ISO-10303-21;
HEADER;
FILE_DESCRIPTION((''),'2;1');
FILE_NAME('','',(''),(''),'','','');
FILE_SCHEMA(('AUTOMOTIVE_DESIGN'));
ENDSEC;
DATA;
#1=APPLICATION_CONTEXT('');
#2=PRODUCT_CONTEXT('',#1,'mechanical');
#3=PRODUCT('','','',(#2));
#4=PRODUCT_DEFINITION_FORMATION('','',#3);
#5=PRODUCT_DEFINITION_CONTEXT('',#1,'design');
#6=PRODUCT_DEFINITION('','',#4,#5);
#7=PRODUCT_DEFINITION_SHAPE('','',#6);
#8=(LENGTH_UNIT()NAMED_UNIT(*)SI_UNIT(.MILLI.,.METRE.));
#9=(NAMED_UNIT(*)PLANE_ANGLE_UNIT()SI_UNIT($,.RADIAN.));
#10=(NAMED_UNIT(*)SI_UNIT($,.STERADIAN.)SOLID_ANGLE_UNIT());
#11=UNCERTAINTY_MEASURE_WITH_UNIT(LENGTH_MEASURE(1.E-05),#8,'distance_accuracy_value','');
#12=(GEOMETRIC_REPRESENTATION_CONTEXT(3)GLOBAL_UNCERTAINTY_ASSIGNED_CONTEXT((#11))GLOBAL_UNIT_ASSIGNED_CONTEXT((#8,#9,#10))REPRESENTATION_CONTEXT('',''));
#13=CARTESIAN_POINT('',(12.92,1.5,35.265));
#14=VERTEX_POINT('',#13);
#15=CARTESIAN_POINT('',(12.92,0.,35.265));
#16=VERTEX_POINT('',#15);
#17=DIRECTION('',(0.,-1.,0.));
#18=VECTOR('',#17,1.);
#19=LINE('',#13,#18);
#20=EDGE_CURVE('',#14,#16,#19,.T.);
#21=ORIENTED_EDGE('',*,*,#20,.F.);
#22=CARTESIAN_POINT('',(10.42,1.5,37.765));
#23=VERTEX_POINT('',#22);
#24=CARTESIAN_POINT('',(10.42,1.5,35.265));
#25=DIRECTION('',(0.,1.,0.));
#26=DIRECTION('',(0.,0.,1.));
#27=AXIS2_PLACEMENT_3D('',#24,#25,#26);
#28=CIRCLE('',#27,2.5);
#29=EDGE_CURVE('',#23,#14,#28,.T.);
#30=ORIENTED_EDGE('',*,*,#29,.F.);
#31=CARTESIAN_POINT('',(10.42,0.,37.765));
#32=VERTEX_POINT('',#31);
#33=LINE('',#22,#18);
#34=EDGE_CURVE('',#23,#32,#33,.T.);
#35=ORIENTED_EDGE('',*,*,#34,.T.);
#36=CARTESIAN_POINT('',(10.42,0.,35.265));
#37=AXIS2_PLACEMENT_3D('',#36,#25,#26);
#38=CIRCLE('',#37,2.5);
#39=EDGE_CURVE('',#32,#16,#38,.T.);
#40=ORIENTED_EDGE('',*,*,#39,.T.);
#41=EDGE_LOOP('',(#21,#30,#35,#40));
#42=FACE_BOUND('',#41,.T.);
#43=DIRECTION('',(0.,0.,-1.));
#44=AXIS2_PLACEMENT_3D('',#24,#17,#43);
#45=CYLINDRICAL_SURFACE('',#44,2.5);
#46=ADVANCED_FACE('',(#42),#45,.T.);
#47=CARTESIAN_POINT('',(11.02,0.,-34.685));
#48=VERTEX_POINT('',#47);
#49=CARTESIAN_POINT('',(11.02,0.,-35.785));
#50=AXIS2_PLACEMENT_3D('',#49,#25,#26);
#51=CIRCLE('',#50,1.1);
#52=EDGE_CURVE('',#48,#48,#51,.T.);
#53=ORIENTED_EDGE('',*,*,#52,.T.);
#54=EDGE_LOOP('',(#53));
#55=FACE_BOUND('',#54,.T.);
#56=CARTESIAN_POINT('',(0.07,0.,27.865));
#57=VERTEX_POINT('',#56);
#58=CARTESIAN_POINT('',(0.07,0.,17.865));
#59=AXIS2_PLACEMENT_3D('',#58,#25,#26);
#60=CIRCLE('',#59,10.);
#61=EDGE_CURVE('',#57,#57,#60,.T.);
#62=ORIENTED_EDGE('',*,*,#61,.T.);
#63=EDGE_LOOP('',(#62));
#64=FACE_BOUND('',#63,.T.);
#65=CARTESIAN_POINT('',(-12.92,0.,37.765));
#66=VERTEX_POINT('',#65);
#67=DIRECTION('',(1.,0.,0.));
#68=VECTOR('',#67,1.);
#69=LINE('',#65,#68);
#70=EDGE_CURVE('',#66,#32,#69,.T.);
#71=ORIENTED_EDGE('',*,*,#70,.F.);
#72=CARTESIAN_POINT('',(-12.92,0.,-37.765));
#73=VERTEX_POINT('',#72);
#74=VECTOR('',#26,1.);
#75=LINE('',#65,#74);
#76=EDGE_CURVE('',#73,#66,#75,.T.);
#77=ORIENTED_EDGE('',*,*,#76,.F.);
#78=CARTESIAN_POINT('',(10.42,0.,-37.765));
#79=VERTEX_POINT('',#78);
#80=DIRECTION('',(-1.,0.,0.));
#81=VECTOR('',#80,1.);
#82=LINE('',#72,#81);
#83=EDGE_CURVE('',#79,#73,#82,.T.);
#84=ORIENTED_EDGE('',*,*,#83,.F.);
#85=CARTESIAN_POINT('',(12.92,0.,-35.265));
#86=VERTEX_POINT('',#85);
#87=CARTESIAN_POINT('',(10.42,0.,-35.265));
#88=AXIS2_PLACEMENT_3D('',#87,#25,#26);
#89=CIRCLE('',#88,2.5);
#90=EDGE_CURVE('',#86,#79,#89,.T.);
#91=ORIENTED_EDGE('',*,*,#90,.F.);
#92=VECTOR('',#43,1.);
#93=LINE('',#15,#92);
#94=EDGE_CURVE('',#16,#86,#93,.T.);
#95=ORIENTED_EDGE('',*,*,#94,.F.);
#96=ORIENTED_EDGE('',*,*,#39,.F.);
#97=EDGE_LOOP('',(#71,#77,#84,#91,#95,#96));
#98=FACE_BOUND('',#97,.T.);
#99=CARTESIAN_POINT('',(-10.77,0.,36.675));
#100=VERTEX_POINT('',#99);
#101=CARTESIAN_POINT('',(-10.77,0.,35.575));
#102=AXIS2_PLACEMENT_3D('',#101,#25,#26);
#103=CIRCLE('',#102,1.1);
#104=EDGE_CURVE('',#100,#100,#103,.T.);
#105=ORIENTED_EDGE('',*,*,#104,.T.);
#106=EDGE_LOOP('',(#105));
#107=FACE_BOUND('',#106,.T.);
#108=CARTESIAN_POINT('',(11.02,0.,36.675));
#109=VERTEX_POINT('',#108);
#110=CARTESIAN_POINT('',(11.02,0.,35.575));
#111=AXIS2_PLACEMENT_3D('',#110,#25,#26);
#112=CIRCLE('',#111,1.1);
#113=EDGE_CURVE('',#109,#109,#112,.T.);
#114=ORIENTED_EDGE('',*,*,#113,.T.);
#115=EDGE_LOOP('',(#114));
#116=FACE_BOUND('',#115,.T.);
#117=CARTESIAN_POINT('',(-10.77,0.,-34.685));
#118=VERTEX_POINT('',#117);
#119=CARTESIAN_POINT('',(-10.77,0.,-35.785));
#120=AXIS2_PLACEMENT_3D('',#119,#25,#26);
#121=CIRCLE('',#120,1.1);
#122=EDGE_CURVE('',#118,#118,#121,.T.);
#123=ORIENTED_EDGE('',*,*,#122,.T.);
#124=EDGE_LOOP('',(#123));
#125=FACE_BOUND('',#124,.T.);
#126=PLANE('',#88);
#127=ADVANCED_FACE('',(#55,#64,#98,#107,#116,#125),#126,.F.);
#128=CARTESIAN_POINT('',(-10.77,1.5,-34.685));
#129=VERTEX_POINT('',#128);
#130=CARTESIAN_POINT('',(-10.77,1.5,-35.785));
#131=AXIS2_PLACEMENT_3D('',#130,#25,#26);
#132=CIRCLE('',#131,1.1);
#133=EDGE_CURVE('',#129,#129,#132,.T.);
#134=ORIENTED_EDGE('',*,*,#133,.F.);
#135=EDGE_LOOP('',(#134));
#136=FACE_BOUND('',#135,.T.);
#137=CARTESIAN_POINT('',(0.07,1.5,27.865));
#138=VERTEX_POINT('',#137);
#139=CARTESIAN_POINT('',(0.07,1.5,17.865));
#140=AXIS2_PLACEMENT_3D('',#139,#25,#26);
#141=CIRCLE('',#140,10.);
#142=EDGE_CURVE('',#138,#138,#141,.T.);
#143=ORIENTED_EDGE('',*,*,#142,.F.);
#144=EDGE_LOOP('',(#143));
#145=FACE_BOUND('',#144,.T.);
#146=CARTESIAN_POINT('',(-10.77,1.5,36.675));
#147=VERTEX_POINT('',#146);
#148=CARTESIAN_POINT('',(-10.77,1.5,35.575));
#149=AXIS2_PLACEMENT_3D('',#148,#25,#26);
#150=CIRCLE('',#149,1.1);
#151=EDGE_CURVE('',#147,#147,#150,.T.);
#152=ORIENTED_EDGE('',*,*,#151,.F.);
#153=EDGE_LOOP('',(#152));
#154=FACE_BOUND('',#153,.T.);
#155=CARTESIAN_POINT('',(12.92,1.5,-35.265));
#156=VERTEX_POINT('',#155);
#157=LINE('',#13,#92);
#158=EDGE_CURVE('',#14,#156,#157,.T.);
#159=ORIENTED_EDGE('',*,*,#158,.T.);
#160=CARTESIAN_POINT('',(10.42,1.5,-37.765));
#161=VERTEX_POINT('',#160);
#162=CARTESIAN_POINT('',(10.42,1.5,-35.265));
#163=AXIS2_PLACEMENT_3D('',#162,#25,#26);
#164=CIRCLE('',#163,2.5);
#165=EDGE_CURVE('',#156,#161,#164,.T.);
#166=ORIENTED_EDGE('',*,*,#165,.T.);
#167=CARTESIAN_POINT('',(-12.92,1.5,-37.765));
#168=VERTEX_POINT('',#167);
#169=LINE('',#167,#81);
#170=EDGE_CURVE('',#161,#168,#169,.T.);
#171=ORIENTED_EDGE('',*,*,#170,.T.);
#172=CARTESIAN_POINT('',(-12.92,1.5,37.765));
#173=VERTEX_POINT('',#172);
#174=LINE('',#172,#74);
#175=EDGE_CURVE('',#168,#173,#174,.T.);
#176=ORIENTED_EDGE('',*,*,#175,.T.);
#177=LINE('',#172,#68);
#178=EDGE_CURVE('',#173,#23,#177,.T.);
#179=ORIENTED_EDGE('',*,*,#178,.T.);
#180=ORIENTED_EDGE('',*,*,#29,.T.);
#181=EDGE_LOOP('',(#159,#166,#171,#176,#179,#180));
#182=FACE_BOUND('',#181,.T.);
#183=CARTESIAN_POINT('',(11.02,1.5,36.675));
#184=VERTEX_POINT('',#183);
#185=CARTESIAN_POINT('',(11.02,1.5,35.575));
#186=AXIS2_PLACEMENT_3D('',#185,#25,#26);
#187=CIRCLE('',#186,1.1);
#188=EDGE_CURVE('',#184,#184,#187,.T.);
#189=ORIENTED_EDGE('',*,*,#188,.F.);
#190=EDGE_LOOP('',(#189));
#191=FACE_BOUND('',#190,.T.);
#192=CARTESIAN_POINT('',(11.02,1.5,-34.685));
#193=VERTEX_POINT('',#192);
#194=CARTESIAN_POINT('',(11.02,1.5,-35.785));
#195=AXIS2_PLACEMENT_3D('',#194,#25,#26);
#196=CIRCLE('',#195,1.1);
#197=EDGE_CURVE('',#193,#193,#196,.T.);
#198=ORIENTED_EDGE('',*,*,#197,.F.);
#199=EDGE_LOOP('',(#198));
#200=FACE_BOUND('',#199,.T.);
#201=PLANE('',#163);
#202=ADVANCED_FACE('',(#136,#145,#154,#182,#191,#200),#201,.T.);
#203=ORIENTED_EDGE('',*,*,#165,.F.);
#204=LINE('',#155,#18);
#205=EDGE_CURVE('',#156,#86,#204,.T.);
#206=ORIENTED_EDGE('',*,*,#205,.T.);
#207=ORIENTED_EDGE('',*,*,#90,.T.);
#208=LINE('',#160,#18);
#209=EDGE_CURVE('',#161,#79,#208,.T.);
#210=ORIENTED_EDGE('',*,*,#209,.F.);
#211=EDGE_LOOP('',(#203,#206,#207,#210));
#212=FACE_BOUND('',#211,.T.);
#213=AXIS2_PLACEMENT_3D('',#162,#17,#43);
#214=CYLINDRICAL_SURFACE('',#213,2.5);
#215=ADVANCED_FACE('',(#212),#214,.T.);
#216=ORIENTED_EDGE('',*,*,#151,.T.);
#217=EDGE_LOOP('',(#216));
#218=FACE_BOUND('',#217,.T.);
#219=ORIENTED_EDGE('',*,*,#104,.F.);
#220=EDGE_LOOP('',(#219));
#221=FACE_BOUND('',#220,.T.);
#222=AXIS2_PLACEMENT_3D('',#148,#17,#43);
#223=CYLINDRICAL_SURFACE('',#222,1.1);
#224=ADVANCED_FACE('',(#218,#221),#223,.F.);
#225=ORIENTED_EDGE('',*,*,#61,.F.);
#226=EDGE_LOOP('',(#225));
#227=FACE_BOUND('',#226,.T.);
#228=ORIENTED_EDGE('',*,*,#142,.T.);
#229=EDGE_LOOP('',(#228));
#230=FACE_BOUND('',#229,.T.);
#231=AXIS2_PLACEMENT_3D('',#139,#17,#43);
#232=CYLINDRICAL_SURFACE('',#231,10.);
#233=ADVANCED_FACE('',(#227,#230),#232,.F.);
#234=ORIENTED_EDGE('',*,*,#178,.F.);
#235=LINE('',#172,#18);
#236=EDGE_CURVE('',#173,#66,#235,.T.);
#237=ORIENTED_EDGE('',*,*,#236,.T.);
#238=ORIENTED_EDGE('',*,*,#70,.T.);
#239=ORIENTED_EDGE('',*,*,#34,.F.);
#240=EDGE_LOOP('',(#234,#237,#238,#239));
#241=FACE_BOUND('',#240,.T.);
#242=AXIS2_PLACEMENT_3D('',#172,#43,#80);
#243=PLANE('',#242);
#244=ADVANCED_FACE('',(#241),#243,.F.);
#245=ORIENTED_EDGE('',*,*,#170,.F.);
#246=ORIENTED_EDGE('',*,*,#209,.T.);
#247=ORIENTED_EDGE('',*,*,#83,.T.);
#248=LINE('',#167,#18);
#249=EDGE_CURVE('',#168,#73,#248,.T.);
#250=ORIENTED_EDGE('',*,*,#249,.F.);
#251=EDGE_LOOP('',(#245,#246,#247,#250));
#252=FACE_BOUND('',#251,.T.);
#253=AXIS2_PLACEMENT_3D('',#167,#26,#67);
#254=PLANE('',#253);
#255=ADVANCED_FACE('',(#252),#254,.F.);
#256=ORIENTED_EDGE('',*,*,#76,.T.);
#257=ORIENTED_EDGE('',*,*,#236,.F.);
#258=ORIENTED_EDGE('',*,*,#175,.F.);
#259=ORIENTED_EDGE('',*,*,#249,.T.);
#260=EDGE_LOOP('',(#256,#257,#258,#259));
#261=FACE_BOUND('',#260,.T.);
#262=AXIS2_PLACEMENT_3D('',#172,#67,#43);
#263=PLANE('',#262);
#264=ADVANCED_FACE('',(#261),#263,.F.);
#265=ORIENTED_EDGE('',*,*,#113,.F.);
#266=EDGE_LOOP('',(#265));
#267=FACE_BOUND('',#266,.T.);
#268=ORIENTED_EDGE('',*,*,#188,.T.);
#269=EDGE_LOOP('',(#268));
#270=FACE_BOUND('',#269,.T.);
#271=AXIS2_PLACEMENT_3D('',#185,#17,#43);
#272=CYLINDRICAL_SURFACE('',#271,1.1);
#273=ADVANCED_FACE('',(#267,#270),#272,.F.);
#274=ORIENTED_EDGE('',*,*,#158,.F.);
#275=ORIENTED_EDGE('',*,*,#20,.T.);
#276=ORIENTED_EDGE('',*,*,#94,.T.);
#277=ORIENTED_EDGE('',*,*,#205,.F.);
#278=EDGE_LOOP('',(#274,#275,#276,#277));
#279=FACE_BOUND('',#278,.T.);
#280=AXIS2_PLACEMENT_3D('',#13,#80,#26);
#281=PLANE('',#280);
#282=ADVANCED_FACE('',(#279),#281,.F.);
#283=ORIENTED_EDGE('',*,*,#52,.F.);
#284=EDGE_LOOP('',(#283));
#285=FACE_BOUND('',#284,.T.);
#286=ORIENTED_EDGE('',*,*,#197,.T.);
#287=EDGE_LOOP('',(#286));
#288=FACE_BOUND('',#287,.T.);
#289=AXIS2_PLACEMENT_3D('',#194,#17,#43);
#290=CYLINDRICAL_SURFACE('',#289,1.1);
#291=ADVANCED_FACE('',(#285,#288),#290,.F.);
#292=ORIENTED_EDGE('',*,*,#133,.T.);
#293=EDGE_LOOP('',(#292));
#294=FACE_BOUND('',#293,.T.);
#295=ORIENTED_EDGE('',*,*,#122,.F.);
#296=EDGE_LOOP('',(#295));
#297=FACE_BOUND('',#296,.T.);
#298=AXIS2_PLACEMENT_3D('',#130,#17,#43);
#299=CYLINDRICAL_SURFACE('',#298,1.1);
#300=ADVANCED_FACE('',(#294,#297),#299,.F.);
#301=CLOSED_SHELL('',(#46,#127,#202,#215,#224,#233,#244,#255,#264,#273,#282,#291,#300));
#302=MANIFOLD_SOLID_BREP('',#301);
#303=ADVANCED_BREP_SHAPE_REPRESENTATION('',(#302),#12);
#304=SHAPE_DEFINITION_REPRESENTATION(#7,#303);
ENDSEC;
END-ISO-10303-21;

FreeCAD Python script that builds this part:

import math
import FreeCAD as App
import Part
import Sketcher

doc = App.newDocument("Part")
body = doc.addObject("PartDesign::Body", "Body")

sketch1 = body.newObject("Sketcher::SketchObject", "Sketch")
sketch1.AttachmentSupport = (doc.getObject("XZ_Plane"), [""])
sketch1.MapMode = "FlatFace"
sketch1.addGeometry(Part.LineSegment(App.Vector(10.4, -37.8, 0), App.Vector(-12.9, -37.8, 0)), False)
sketch1.addGeometry(Part.LineSegment(App.Vector(-12.9, -37.8, 0), App.Vector(-12.9, 37.8, 0)), False)
sketch1.addGeometry(Part.LineSegment(App.Vector(-12.9, 37.8, 0), App.Vector(10.4, 37.8, 0)), False)
sketch1.addGeometry(Part.ArcOfCircle(Part.Circle(App.Vector(10.4, 35.3, 0), App.Vector(0, 0, 1), 2.5), math.radians(0), math.radians(90)), False)
sketch1.addGeometry(Part.LineSegment(App.Vector(12.9, 35.3, 0), App.Vector(12.9, -35.3, 0)), False)
sketch1.addGeometry(Part.ArcOfCircle(Part.Circle(App.Vector(10.4, -35.3, 0), App.Vector(0, 0, 1), 2.5), math.radians(-90), math.radians(0)), False)
sketch1.addGeometry(Part.Circle(App.Vector(11, 35.6, 0), App.Vector(0, 0, 1), 1.1), False)
sketch1.addGeometry(Part.Circle(App.Vector(-10.8, 35.6, 0), App.Vector(0, 0, 1), 1.1), False)
sketch1.addGeometry(Part.Circle(App.Vector(0.1, 17.9, 0), App.Vector(0, 0, 1), 10), False)
sketch1.addGeometry(Part.Circle(App.Vector(11, -35.8, 0), App.Vector(0, 0, 1), 1.1), False)
sketch1.addGeometry(Part.Circle(App.Vector(-10.8, -35.8, 0), App.Vector(0, 0, 1), 1.1), False)
sketch1.addConstraint(Sketcher.Constraint("Coincident", 0, 2, 1, 1))
sketch1.addConstraint(Sketcher.Constraint("Coincident", 1, 2, 2, 1))
sketch1.addConstraint(Sketcher.Constraint("Tangent", 2, 2, 3, 2))
sketch1.addConstraint(Sketcher.Constraint("Tangent", 3, 1, 4, 1))
sketch1.addConstraint(Sketcher.Constraint("Tangent", 4, 2, 5, 2))
sketch1.addConstraint(Sketcher.Constraint("Tangent", 5, 1, 0, 1))
sketch1.addConstraint(Sketcher.Constraint("Horizontal", 0))
sketch1.addConstraint(Sketcher.Constraint("Vertical", 1))
sketch1.addConstraint(Sketcher.Constraint("Horizontal", 2))
sketch1.addConstraint(Sketcher.Constraint("Vertical", 4))
sketch1.addConstraint(Sketcher.Constraint("Equal", 3, 5))
sketch1.addConstraint(Sketcher.Constraint("Equal", 6, 7))
sketch1.addConstraint(Sketcher.Constraint("Equal", 7, 9))
sketch1.addConstraint(Sketcher.Constraint("Equal", 9, 10))
sketch1.addConstraint(Sketcher.Constraint("Horizontal", 6, 3, 7, 3))
sketch1.addConstraint(Sketcher.Constraint("Horizontal", 9, 3, 10, 3))
sketch1.addConstraint(Sketcher.Constraint("Vertical", 6, 3, 9, 3))
sketch1.addConstraint(Sketcher.Constraint("Vertical", 7, 3, 10, 3))
sketch1.addConstraint(Sketcher.Constraint("Diameter", 8, 20.0))
sketch1.addConstraint(Sketcher.Constraint("Diameter", 6, 2.2))
sketch1.addConstraint(Sketcher.Constraint("Radius", 3, 2.5))
sketch1.addConstraint(Sketcher.Constraint("DistanceX", 0, 2, 0, 1, 23.34))
sketch1.addConstraint(Sketcher.Constraint("DistanceY", 1, 1, 1, 2, 75.53))
sketch1.addConstraint(Sketcher.Constraint("DistanceX", 3, 3, 6, 3, 0.6))
sketch1.addConstraint(Sketcher.Constraint("DistanceY", 8, 3, 3, 3, 17.4))
sketch1.addConstraint(Sketcher.Constraint("DistanceX", -1, 1, 3, 3, 10.42))
sketch1.addConstraint(Sketcher.Constraint("DistanceX", 7, 3, -1, 1, 10.77))
sketch1.addConstraint(Sketcher.Constraint("DistanceX", -1, 1, 8, 3, 0.07))
sketch1.addConstraint(Sketcher.Constraint("DistanceY", 3, 3, 6, 3, 0.31))
sketch1.addConstraint(Sketcher.Constraint("DistanceY", 9, 3, 5, 3, 0.52))
sketch1.addConstraint(Sketcher.Constraint("DistanceY", -1, 1, 3, 3, 35.265))
pad1 = body.newObject("PartDesign::Pad", "Pad")
pad1.Profile = sketch1
pad1.Length = 1.5
pad1.Reversed = True

doc.recompute()
